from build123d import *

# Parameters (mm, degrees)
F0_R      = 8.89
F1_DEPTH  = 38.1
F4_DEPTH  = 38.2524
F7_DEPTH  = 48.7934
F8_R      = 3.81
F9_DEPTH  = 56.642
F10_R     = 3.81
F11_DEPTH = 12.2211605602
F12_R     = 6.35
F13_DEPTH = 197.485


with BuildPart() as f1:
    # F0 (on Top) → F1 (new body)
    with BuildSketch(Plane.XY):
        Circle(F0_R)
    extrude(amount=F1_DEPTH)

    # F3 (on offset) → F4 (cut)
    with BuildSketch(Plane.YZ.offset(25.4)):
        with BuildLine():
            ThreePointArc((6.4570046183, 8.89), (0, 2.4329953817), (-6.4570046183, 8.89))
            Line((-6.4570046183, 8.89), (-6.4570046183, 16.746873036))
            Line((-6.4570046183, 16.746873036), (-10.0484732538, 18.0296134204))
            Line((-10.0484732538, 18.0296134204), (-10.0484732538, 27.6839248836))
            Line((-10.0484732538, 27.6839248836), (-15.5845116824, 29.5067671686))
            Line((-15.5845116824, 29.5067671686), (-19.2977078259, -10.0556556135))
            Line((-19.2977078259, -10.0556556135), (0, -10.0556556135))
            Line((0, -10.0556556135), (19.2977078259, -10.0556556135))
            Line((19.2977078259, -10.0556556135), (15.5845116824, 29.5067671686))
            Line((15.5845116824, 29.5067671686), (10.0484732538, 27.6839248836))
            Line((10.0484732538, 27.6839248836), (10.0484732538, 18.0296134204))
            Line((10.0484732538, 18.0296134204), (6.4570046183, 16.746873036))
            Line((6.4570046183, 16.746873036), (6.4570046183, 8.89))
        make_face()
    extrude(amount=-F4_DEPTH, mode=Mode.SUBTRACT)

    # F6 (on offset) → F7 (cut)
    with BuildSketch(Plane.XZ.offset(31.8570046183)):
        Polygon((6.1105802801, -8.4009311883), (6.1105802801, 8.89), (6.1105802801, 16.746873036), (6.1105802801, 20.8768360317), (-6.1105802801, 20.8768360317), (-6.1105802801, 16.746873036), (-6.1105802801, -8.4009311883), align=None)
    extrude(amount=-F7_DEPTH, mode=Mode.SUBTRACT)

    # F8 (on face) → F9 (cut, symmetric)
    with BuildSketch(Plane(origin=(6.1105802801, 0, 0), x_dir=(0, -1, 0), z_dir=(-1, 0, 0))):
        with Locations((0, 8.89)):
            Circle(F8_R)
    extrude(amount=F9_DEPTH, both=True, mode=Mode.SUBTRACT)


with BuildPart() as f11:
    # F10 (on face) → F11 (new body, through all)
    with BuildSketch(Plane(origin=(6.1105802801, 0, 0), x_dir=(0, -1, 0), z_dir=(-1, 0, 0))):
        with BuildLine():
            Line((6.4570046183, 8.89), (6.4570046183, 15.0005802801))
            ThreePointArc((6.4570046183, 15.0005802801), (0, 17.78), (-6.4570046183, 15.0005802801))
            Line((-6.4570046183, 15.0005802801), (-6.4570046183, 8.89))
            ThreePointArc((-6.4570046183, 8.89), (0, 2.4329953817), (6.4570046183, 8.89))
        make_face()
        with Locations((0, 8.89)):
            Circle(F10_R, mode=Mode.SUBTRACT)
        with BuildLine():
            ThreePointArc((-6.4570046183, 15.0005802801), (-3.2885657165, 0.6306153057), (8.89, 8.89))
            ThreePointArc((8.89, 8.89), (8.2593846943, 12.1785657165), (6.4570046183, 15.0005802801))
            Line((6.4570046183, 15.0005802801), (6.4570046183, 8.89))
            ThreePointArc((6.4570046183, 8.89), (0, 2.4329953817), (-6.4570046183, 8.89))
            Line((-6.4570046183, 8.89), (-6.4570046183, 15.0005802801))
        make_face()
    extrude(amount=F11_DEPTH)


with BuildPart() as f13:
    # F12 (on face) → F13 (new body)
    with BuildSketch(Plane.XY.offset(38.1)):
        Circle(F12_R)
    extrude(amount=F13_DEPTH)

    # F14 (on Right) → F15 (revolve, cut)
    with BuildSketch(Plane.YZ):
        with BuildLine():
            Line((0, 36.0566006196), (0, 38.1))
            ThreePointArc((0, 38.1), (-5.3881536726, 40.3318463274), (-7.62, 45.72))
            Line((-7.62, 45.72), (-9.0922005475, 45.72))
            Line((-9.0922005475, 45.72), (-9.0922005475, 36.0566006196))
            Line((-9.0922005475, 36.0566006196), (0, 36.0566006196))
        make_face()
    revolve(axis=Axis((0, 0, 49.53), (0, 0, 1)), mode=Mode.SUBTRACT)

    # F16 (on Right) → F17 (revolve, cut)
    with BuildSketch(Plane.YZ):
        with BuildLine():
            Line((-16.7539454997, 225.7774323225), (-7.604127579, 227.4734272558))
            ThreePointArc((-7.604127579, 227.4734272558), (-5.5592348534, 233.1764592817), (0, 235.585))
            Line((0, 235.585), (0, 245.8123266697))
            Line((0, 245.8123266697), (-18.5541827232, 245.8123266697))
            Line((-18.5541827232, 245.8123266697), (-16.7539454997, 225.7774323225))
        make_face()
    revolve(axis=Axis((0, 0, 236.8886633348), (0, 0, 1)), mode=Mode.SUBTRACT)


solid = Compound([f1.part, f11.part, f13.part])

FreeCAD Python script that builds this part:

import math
import FreeCAD as App
import Part
import Sketcher
from FreeCAD import Vector
Q = App.Units.Quantity

doc = App.newDocument("Part")
body = doc.addObject("PartDesign::Body", "Body")

# Sketch on XY plane
sketch1 = body.newObject("Sketcher::SketchObject", "Sketch")
sketch1.AttachmentSupport = (doc.getObject("XY_Plane"), [""])
sketch1.MapMode = "FlatFace"
sketch1.addGeometry(Part.Circle(Vector(0, 0, 0), Vector(0, 0, 1), 9), False)
sketch1.addConstraint([
    Sketcher.Constraint("Coincident", 0, 3, -1, 1),
    Sketcher.Constraint("Diameter", 0, Q("0.7 in")),
])
pad1 = body.newObject("PartDesign::Pad", "Pad")
pad1.Profile = sketch1
pad1.Length = Q("1.5 in")

# Sketch on YZ plane
sketch2 = body.newObject("Sketcher::SketchObject", "Sketch001")
sketch2.AttachmentSupport = (doc.getObject("YZ_Plane"), [""])
sketch2.MapMode = "FlatFace"
sketch2.AttachmentOffset = App.Placement(Vector(0, 0, 1 * 25.4), App.Rotation())
sketch2.addGeometry([
    Part.ArcOfCircle(Part.Circle(Vector(0, 8.9, 0), Vector(0, 0, 1), 6.5), math.radians(180), math.radians(360)),  # 0
    Part.LineSegment(Vector(-6.5, 8.9, 0), Vector(-6.5, 16.7, 0)),  # 1
    Part.LineSegment(Vector(-6.5, 16.7, 0), Vector(-10, 18, 0)),  # 2
    Part.LineSegment(Vector(-10, 18, 0), Vector(-10, 27.7, 0)),  # 3
    Part.LineSegment(Vector(-10, 27.7, 0), Vector(-15.6, 29.5, 0)),  # 4
    Part.LineSegment(Vector(-15.6, 29.5, 0), Vector(-19.3, -10.1, 0)),  # 5
    Part.LineSegment(Vector(-19.3, -10.1, 0), Vector(19.3, -10.1, 0)),  # 6
    Part.LineSegment(Vector(19.3, -10.1, 0), Vector(15.6, 29.5, 0)),  # 7
    Part.LineSegment(Vector(15.6, 29.5, 0), Vector(10, 27.7, 0)),  # 8
    Part.LineSegment(Vector(10, 27.7, 0), Vector(10, 18, 0)),  # 9
    Part.LineSegment(Vector(10, 18, 0), Vector(6.5, 16.7, 0)),  # 10
    Part.LineSegment(Vector(6.5, 16.7, 0), Vector(6.5, 8.9, 0)),  # 11
], False)
sketch2.addConstraint([
    Sketcher.Constraint("Tangent", 0, 1, 1, 1),
    Sketcher.Constraint("Coincident", 1, 2, 2, 1),
    Sketcher.Constraint("Coincident", 2, 2, 3, 1),
    Sketcher.Constraint("Coincident", 3, 2, 4, 1),
    Sketcher.Constraint("Coincident", 4, 2, 5, 1),
    Sketcher.Constraint("Coincident", 5, 2, 6, 1),
    Sketcher.Constraint("Coincident", 6, 2, 7, 1),
    Sketcher.Constraint("Coincident", 7, 2, 8, 1),
    Sketcher.Constraint("Coincident", 8, 2, 9, 1),
    Sketcher.Constraint("Coincident", 9, 2, 10, 1),
    Sketcher.Constraint("Coincident", 10, 2, 11, 1),
    Sketcher.Constraint("Tangent", 11, 2, 0, 2),
    Sketcher.Constraint("Vertical", 1),
    Sketcher.Constraint("Vertical", 3),
    Sketcher.Constraint("Horizontal", 6),
    Sketcher.Constraint("Vertical", 9),
    Sketcher.Constraint("Vertical", 11),
    Sketcher.Constraint("Symmetric", 4, 2, 7, 2, -2),
    Sketcher.Constraint("Symmetric", 3, 2, 8, 2, -2),
    Sketcher.Constraint("Symmetric", 1, 2, 10, 2, -2),
    Sketcher.Constraint("Horizontal", 2, 2, 9, 2),
    Sketcher.Constraint("Equal", 5, 7),
    Sketcher.Constraint("DistanceY", -1, 1, 0, 3, Q("0.35 in")),
    Sketcher.Constraint("Radius", 0, 6.457005),
    Sketcher.Constraint("DistanceY", 3, 1, 3, 2, 9.654311),
    Sketcher.Constraint("Distance", 2, 3.813669),
    Sketcher.Constraint("Distance", 4, 5.82842),
    Sketcher.Constraint("DistanceX", 6, 1, 6, 2, 38.595416),
    Sketcher.Constraint("DistanceY", 1, 1, 1, 2, 7.856873),
    Sketcher.Constraint("DistanceX", 4, 2, -1, 1, 15.584512),
    Sketcher.Constraint("DistanceX", 2, 2, 1, 2, 3.591469),
    Sketcher.Constraint("DistanceY", 5, 2, 2, 2, 28.085269),
])
pocket1 = body.newObject("PartDesign::Pocket", "Pocket")
pocket1.Profile = sketch2
pocket1.Length = Q("1.506 in")

# Sketch on XZ plane
sketch3 = body.newObject("Sketcher::SketchObject", "Sketch002")
sketch3.AttachmentSupport = (doc.getObject("XZ_Plane"), [""])
sketch3.MapMode = "FlatFace"
sketch3.AttachmentOffset = App.Placement(Vector(0, 0, 31.857005), App.Rotation())
sketch3.addGeometry([
    Part.LineSegment(Vector(6, -8, 0), Vector(6, 21, 0)),
    Part.LineSegment(Vector(6, 21, 0), Vector(-6, 21, 0)),
    Part.LineSegment(Vector(-6, 21, 0), Vector(-6, -8, 0)),
    Part.LineSegment(Vector(-6, -8, 0), Vector(6, -8, 0)),
], False)
sketch3.addConstraint([
    Sketcher.Constraint("Coincident", 0, 2, 1, 1),
    Sketcher.Constraint("Coincident", 1, 2, 2, 1),
    Sketcher.Constraint("Coincident", 2, 2, 3, 1),
    Sketcher.Constraint("Coincident", 3, 2, 0, 1),
    Sketcher.Constraint("Vertical", 0),
    Sketcher.Constraint("Horizontal", 1),
    Sketcher.Constraint("Vertical", 2),
    Sketcher.Constraint("Horizontal", 3),
    Sketcher.Constraint("DistanceX", 1, 2, 1, 1, 12.221161),
    Sketcher.Constraint("DistanceY", 0, 1, 0, 2, 29.277767),
    Sketcher.Constraint("DistanceX", -1, 1, 0, 2, 6.11058),
    Sketcher.Constraint("DistanceY", 2, 2, -1, 1, 8.400931),
])
pocket2 = body.newObject("PartDesign::Pocket", "Pocket001")
pocket2.Profile = sketch3
pocket2.Length = Q("1.921 in")

# Sketch on YZ plane
sketch4 = body.newObject("Sketcher::SketchObject", "Sketch003")
sketch4.AttachmentSupport = (doc.getObject("YZ_Plane"), [""])
sketch4.MapMode = "FlatFace"
sketch4.AttachmentOffset = App.Placement(Vector(0, 0, 6.11058), App.Rotation())
sketch4.addGeometry(Part.Circle(Vector(0, 8.9, 0), Vector(0, 0, 1), 3.8), False)
sketch4.addConstraint([
    Sketcher.Constraint("PointOnObject", 0, 3, -2),
    Sketcher.Constraint("Diameter", 0, Q("0.3 in")),
    Sketcher.Constraint("DistanceY", -1, 1, 0, 3, Q("0.35 in")),
])
pocket3 = body.newObject("PartDesign::Pocket", "Pocket002")
pocket3.Profile = sketch4
pocket3.Length = Q("4.46 in")
pocket3.Midplane = True
body2 = doc.addObject("PartDesign::Body", "Body001")

# Sketch on YZ plane
sketch5 = body2.newObject("Sketcher::SketchObject", "Sketch004")
sketch5.AttachmentSupport = (doc.getObject("YZ_Plane001"), [""])
sketch5.MapMode = "FlatFace"
sketch5.AttachmentOffset = App.Placement(Vector(0, 0, 6.11058), App.Rotation())
sketch5.addGeometry([
    Part.ArcOfCircle(Part.Circle(Vector(0, 8.9, 0), Vector(0, 0, 1), 8.9), math.radians(43), math.radians(137)),
    Part.ArcOfCircle(Part.Circle(Vector(0, 8.9, 0), Vector(0, 0, 1), 8.9), math.radians(180), math.radians(403)),
    Part.ArcOfCircle(Part.Circle(Vector(0, 8.9, 0), Vector(0, 0, 1), 8.9), math.radians(137), math.radians(180)),
    Part.Circle(Vector(0, 8.9, 0), Vector(0, 0, 1), 3.8),
], False)
sketch5.addConstraint([
    Sketcher.Constraint("Tangent", 0, 1, 1, 2),
    Sketcher.Constraint("Tangent", 1, 1, 2, 2),
    Sketcher.Constraint("Tangent", 2, 1, 0, 2),
    Sketcher.Constraint("Coincident", 3, 3, 0, 3),
    Sketcher.Constraint("Symmetric", 0, 1, 2, 1, -2),
    Sketcher.Constraint("Horizontal", 3, 3, 1, 1),
    Sketcher.Constraint("Diameter", 3, Q("0.3 in")),
    Sketcher.Constraint("Radius", 0, Q("0.35 in")),
    Sketcher.Constraint("DistanceY", -1, 1, 0, 3, Q("0.35 in")),
    Sketcher.Constraint("DistanceY", -1, 1, 0, 1, 15.00058),
])
pad2 = body2.newObject("PartDesign::Pad", "Pad001")
pad2.Profile = sketch5
pad2.Length = 12.221161
pad2.Reversed = True
body3 = doc.addObject("PartDesign::Body", "Body002")

# Sketch on XY plane
sketch6 = body3.newObject("Sketcher::SketchObject", "Sketch005")
sketch6.AttachmentSupport = (doc.getObject("XY_Plane002"), [""])
sketch6.MapMode = "FlatFace"
sketch6.AttachmentOffset = App.Placement(Vector(0, 0, 1.5 * 25.4), App.Rotation())
sketch6.addGeometry(Part.Circle(Vector(0, 0, 0), Vector(0, 0, 1), 6), False)
sketch6.addConstraint([
    Sketcher.Constraint("Coincident", 0, 3, -1, 1),
    Sketcher.Constraint("Diameter", 0, Q("0.5 in")),
])
pad3 = body3.newObject("PartDesign::Pad", "Pad002")
pad3.Profile = sketch6
pad3.Length = Q("7.775 in")

# Sketch on YZ plane
sketch7 = body3.newObject("Sketcher::SketchObject", "Sketch006")
sketch7.AttachmentSupport = (doc.getObject("YZ_Plane002"), [""])
sketch7.MapMode = "FlatFace"
sketch7.addGeometry([
    Part.LineSegment(Vector(0, 36.1, 0), Vector(0, 38.1, 0)),  # 0
    Part.ArcOfCircle(Part.Circle(Vector(0, 45.7, 0), Vector(0, 0, 1), 7.6), math.radians(180), math.radians(270)),  # 1
    Part.LineSegment(Vector(-7.6, 45.7, 0), Vector(-9.1, 45.7, 0)),  # 2
    Part.LineSegment(Vector(-9.1, 45.7, 0), Vector(-9.1, 36.1, 0)),  # 3
    Part.LineSegment(Vector(-9.1, 36.1, 0), Vector(0, 36.1, 0)),  # 4
], False)
sketch7.addConstraint([
    Sketcher.Constraint("Coincident", 0, 2, 1, 2),
    Sketcher.Constraint("Coincident", 1, 1, 2, 1),
    Sketcher.Constraint("Coincident", 2, 2, 3, 1),
    Sketcher.Constraint("Coincident", 3, 2, 4, 1),
    Sketcher.Constraint("Coincident", 4, 2, 0, 1),
    Sketcher.Constraint("Vertical", 0),
    Sketcher.Constraint("Horizontal", 2),
    Sketcher.Constraint("Vertical", 3),
    Sketcher.Constraint("Horizontal", 4),
    Sketcher.Constraint("PointOnObject", 1, 3, -2),
    Sketcher.Constraint("PointOnObject", 0, 2, -2),
    Sketcher.Constraint("Radius", 1, Q("0.3 in")),
    Sketcher.Constraint("DistanceY", -1, 1, 1, 3, Q("1.8 in")),
    Sketcher.Constraint("DistanceY", -1, 1, 1, 1, Q("1.8 in")),
    Sketcher.Constraint("DistanceX", 2, 2, 2, 1, 1.472201),
    Sketcher.Constraint("DistanceY", 0, 1, 0, 2, 2.043399),
])
groove = body3.newObject("PartDesign::Groove", "Groove")
groove.Profile = sketch7
groove.ReferenceAxis = (sketch7, ["V_Axis"])
groove.Angle = 360

# Sketch on YZ plane
sketch8 = body3.newObject("Sketcher::SketchObject", "Sketch007")
sketch8.AttachmentSupport = (doc.getObject("YZ_Plane002"), [""])
sketch8.MapMode = "FlatFace"
sketch8.addGeometry([
    Part.LineSegment(Vector(-17, 226, 0), Vector(-8, 227, 0)),  # 0
    Part.ArcOfCircle(Part.Circle(Vector(0, 228, 0), Vector(0, 0, 1), 8), math.radians(90), math.radians(184)),  # 1
    Part.LineSegment(Vector(0, 236, 0), Vector(0, 246, 0)),  # 2
    Part.LineSegment(Vector(0, 246, 0), Vector(-19, 246, 0)),  # 3
    Part.LineSegment(Vector(-19, 246, 0), Vector(-17, 226, 0)),  # 4
], False)
sketch8.addConstraint([
    Sketcher.Constraint("Coincident", 0, 2, 1, 2),
    Sketcher.Constraint("Coincident", 1, 1, 2, 1),
    Sketcher.Constraint("Coincident", 2, 2, 3, 1),
    Sketcher.Constraint("Coincident", 3, 2, 4, 1),
    Sketcher.Constraint("Coincident", 4, 2, 0, 1),
    Sketcher.Constraint("Vertical", 2),
    Sketcher.Constraint("Horizontal", 3),
    Sketcher.Constraint("PointOnObject", 1, 3, -2),
    Sketcher.Constraint("PointOnObject", 1, 1, -2),
    Sketcher.Constraint("Radius", 1, Q("0.3 in")),
    Sketcher.Constraint("DistanceY", -1, 1, 1, 3, Q("8.975 in")),
    Sketcher.Constraint("DistanceY", 0, 2, 2, 2, 18.338899),
    Sketcher.Constraint("Distance", 4, 20.115612),
    Sketcher.Constraint("DistanceX", 3, 2, 3, 1, 18.554183),
    Sketcher.Constraint("DistanceY", 2, 1, 2, 2, 10.227327),
    Sketcher.Constraint("Distance", 0, 9.305674),
])
groove2 = body3.newObject("PartDesign::Groove", "Groove001")
groove2.Profile = sketch8
groove2.ReferenceAxis = (sketch8, ["V_Axis"])
groove2.Angle = 360

doc.recompute()
